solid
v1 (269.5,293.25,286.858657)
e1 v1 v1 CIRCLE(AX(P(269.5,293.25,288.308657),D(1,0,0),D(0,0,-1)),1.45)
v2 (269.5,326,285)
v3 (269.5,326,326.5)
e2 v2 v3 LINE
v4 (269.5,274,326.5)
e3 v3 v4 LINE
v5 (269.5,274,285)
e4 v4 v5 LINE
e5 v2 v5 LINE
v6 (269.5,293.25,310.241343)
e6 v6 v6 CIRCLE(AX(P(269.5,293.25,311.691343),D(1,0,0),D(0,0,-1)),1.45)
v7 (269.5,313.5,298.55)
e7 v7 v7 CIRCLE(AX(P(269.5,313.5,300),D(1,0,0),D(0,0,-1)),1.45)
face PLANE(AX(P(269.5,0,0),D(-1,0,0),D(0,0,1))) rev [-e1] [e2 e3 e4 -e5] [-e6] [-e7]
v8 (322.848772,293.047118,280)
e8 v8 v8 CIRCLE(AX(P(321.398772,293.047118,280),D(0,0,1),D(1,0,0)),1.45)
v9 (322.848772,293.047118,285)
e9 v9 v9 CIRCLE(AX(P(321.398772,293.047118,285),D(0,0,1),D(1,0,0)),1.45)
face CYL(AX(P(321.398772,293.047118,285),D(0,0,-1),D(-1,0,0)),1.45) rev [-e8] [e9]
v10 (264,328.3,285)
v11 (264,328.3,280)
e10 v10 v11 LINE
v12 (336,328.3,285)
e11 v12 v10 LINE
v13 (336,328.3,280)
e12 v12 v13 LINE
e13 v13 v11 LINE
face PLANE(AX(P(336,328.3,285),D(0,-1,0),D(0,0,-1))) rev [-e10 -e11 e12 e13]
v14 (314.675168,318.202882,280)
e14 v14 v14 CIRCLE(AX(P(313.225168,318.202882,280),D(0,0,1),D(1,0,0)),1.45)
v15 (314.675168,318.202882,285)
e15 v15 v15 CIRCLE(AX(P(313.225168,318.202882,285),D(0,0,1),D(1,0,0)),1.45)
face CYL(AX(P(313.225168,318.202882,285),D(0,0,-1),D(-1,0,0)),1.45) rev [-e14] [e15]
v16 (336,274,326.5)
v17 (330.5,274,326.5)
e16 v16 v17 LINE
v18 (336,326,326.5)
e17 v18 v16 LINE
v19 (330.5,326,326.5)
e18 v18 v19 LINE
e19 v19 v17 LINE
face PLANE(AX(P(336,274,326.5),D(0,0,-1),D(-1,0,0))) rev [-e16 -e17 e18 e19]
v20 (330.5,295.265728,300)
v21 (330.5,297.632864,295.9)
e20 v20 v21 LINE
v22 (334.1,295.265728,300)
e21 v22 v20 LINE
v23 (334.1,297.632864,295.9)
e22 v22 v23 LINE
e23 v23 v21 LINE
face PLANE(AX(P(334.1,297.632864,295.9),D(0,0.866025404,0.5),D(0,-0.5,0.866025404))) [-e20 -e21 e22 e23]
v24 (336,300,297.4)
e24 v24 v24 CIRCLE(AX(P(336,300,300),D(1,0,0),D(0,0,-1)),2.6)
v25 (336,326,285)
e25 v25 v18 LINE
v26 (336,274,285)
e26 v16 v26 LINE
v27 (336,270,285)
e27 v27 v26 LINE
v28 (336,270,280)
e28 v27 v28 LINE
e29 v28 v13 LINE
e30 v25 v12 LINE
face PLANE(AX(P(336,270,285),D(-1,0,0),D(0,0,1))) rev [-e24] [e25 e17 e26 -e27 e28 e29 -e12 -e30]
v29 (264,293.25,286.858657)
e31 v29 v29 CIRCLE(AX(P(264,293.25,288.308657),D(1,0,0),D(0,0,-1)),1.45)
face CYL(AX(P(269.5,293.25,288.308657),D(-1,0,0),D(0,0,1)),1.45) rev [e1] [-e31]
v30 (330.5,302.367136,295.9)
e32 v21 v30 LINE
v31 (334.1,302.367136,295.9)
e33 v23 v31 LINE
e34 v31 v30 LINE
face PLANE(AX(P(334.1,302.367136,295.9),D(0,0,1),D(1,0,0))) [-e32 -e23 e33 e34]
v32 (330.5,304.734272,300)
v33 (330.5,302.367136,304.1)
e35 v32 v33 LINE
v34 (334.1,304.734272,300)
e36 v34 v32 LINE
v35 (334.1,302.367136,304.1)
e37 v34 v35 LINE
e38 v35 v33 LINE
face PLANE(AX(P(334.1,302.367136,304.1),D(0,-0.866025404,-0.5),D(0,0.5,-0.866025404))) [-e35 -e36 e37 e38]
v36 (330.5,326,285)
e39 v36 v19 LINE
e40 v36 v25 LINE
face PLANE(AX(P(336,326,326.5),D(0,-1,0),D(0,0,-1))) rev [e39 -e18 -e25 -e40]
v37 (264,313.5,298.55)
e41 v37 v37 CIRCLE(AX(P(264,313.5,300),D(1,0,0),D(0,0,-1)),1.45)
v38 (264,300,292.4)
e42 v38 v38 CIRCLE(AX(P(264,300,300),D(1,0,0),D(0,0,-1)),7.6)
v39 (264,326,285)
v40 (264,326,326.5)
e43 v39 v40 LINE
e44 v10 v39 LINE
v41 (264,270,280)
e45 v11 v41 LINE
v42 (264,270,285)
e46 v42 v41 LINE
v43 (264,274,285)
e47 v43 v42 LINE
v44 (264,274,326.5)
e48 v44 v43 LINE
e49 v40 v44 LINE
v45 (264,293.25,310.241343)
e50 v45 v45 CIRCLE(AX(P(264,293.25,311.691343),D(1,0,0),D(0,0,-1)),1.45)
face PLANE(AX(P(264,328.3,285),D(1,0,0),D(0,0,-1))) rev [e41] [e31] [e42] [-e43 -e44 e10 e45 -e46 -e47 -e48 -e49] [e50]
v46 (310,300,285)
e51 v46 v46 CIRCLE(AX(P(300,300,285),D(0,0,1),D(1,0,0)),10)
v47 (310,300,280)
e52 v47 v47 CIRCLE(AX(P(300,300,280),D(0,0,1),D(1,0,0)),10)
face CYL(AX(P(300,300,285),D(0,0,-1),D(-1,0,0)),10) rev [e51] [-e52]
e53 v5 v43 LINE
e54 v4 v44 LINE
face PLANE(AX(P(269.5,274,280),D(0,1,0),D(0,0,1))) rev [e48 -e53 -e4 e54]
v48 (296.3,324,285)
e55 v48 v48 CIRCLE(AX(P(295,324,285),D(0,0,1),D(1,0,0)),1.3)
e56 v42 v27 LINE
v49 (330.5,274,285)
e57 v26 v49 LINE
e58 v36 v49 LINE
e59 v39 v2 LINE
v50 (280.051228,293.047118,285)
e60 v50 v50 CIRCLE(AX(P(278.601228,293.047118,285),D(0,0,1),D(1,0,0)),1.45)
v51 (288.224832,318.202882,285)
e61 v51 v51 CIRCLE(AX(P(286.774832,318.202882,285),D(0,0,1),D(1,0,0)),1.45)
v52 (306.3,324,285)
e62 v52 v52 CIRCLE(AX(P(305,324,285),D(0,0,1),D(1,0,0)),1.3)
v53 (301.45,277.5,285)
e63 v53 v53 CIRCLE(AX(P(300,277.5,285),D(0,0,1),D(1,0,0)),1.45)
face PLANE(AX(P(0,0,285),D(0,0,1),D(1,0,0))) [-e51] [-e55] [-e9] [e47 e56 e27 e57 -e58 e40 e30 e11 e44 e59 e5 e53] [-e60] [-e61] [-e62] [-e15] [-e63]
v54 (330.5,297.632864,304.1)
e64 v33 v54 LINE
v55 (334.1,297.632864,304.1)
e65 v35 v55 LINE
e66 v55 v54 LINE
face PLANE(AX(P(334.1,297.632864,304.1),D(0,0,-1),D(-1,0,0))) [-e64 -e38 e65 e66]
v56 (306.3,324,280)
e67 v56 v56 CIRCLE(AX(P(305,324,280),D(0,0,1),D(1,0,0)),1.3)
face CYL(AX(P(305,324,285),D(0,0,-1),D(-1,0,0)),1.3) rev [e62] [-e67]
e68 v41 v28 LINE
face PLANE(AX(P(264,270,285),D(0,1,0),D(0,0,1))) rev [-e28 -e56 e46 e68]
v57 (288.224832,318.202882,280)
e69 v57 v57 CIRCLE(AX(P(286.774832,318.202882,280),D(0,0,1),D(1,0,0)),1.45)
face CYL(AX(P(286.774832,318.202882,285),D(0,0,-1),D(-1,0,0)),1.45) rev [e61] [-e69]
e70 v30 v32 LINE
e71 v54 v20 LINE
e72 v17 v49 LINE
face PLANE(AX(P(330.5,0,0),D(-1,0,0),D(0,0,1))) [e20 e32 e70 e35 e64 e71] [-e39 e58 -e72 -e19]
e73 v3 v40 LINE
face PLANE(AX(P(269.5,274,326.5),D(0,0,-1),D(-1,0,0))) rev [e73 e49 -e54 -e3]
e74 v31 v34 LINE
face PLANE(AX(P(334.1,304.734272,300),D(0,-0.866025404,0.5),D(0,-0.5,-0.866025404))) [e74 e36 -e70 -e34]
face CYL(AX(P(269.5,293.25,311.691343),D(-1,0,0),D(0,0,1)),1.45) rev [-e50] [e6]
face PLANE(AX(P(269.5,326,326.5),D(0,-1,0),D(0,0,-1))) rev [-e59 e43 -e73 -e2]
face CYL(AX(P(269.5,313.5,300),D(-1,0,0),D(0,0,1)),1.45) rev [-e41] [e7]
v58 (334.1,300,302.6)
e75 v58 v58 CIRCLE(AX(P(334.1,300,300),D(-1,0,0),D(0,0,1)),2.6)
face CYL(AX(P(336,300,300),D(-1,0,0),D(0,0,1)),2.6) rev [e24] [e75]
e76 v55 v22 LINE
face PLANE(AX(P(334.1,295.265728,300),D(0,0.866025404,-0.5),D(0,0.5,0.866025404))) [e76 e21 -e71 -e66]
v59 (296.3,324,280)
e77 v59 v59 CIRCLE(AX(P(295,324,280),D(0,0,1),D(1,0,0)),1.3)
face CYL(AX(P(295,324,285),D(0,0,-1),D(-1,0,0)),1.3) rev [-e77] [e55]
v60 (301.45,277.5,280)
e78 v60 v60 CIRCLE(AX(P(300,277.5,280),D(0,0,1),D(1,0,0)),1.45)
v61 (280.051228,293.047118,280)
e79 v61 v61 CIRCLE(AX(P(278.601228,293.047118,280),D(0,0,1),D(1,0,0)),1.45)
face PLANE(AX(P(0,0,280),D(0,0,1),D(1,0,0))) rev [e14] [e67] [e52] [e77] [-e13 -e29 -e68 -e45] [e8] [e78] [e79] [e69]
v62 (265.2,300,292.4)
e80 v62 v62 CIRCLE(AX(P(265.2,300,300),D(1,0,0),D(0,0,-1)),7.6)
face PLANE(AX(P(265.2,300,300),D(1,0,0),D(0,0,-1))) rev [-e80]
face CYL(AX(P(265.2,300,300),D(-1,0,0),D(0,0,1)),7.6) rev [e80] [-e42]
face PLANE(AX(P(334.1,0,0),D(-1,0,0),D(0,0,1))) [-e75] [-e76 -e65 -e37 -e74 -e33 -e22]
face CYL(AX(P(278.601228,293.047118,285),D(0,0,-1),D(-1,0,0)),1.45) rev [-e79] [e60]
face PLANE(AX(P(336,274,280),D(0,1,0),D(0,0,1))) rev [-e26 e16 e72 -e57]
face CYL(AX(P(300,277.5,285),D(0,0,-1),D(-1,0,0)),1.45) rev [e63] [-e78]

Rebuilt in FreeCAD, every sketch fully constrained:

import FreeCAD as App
import Part
import Sketcher

V = App.Vector
Q = App.Units.Quantity

doc = App.newDocument("Part")
body = doc.addObject("PartDesign::Body", "Body")

# Sketch on XY plane
sketch1 = body.newObject("Sketcher::SketchObject", "Sketch")
sketch1.AttachmentSupport = (doc.getObject("XY_Plane"), [""])
sketch1.MapMode = "FlatFace"
sketch1.AttachmentOffset = App.Placement(V(0, 0, 280), App.Rotation())
sketch1.addGeometry([
    Part.LineSegment(V(264, 328.3, 0), V(264, 270, 0)),  # 0
    Part.LineSegment(V(264, 270, 0), V(336, 270, 0)),  # 1
    Part.LineSegment(V(336, 270, 0), V(336, 328.3, 0)),  # 2
    Part.LineSegment(V(336, 328.3, 0), V(264, 328.3, 0)),  # 3
    Part.Circle(V(300, 277.5, 0), V(0, 0, 1), 1.4),  # 4
    Part.Circle(V(278.6, 293, 0), V(0, 0, 1), 1.4),  # 5
    Part.Circle(V(300, 300, 0), V(0, 0, 1), 10),  # 6
    Part.Circle(V(321.4, 293, 0), V(0, 0, 1), 1.4),  # 7
    Part.Circle(V(286.8, 318.2, 0), V(0, 0, 1), 1.4),  # 8
    Part.Circle(V(295, 324, 0), V(0, 0, 1), 1.3),  # 9
    Part.Circle(V(305, 324, 0), V(0, 0, 1), 1.3),  # 10
    Part.Circle(V(313.2, 318.2, 0), V(0, 0, 1), 1.4),  # 11
], False)
sketch1.addConstraint([
    Sketcher.Constraint("Coincident", 0, 2, 1, 1),
    Sketcher.Constraint("Coincident", 1, 2, 2, 1),
    Sketcher.Constraint("Coincident", 2, 2, 3, 1),
    Sketcher.Constraint("Coincident", 3, 2, 0, 1),
    Sketcher.Constraint("Vertical", 0),
    Sketcher.Constraint("Horizontal", 1),
    Sketcher.Constraint("Vertical", 2),
    Sketcher.Constraint("Horizontal", 3),
    Sketcher.Constraint("Equal", 4, 5),
    Sketcher.Constraint("Equal", 5, 7),
    Sketcher.Constraint("Equal", 7, 8),
    Sketcher.Constraint("Equal", 9, 10),
    Sketcher.Constraint("Equal", 8, 11),
    Sketcher.Constraint("Horizontal", 5, 3, 7, 3),
    Sketcher.Constraint("Horizontal", 9, 3, 10, 3),
    Sketcher.Constraint("Horizontal", 8, 3, 11, 3),
    Sketcher.Constraint("Vertical", 4, 3, 6, 3),
    Sketcher.Constraint("Diameter", 6, 20.0),
    Sketcher.Constraint("Diameter", 4, 2.9),
    Sketcher.Constraint("Diameter", 9, 2.6),
    Sketcher.Constraint("DistanceX", 1, 1, 1, 2, 72.0),
    Sketcher.Constraint("DistanceY", 0, 2, 0, 1, 58.3),
    Sketcher.Constraint("DistanceX", -1, 1, 4, 3, 300.0),
    Sketcher.Constraint("DistanceY", -1, 1, 6, 3, 300.0),
    Sketcher.Constraint("DistanceX", -1, 1, 9, 3, 295.0),
    Sketcher.Constraint("DistanceY", -1, 1, 9, 3, 324.0),
    Sketcher.Constraint("DistanceX", -1, 1, 10, 3, 305.0),
    Sketcher.Constraint("DistanceX", -1, 1, 0, 2, 264.0),
    Sketcher.Constraint("DistanceY", -1, 1, 0, 2, 270.0),
    Sketcher.Constraint("DistanceY", -1, 1, 4, 3, 277.5),
    Sketcher.Constraint("DistanceX", -1, 1, 5, 3, 278.601228),
    Sketcher.Constraint("DistanceX", -1, 1, 7, 3, 321.398772),
    Sketcher.Constraint("DistanceX", -1, 1, 8, 3, 286.774832),
    Sketcher.Constraint("DistanceX", -1, 1, 11, 3, 313.225168),
    Sketcher.Constraint("DistanceY", -1, 1, 5, 3, 293.047118),
    Sketcher.Constraint("DistanceY", -1, 1, 8, 3, 318.202882),
])
pad1 = body.newObject("PartDesign::Pad", "Pad")
pad1.Profile = sketch1
pad1.Length = 5

# Sketch on YZ plane
sketch2 = body.newObject("Sketcher::SketchObject", "Sketch001")
sketch2.AttachmentSupport = (doc.getObject("YZ_Plane"), [""])
sketch2.MapMode = "FlatFace"
sketch2.AttachmentOffset = App.Placement(V(0, 0, 264), App.Rotation())
sketch2.addGeometry([
    Part.LineSegment(V(326, 326.5, 0), V(274, 326.5, 0)),  # 0
    Part.LineSegment(V(274, 326.5, 0), V(274, 280, 0)),  # 1
    Part.LineSegment(V(274, 280, 0), V(326, 280, 0)),  # 2
    Part.LineSegment(V(326, 280, 0), V(326, 326.5, 0)),  # 3
    Part.Circle(V(293.2, 311.7, 0), V(0, 0, 1), 1.4),  # 4
    Part.Circle(V(293.2, 288.3, 0), V(0, 0, 1), 1.4),  # 5
    Part.Circle(V(313.5, 300, 0), V(0, 0, 1), 1.4),  # 6
], False)
sketch2.addConstraint([
    Sketcher.Constraint("Coincident", 0, 2, 1, 1),
    Sketcher.Constraint("Coincident", 1, 2, 2, 1),
    Sketcher.Constraint("Coincident", 2, 2, 3, 1),
    Sketcher.Constraint("Coincident", 3, 2, 0, 1),
    Sketcher.Constraint("Horizontal", 0),
    Sketcher.Constraint("Vertical", 1),
    Sketcher.Constraint("Horizontal", 2),
    Sketcher.Constraint("Vertical", 3),
    Sketcher.Constraint("Equal", 4, 5),
    Sketcher.Constraint("Equal", 5, 6),
    Sketcher.Constraint("Vertical", 4, 3, 5, 3),
    Sketcher.Constraint("Diameter", 4, 2.9),
    Sketcher.Constraint("DistanceX", 0, 2, 0, 1, 52.0),
    Sketcher.Constraint("DistanceY", 1, 2, 1, 1, 46.5),
    Sketcher.Constraint("DistanceY", -1, 1, 6, 3, 300.0),
    Sketcher.Constraint("DistanceX", -1, 1, 0, 2, 274.0),
    Sketcher.Constraint("DistanceY", -1, 1, 1, 2, 280.0),
    Sketcher.Constraint("DistanceX", -1, 1, 6, 3, 313.5),
    Sketcher.Constraint("DistanceX", -1, 1, 4, 3, 293.25),
    Sketcher.Constraint("DistanceY", -1, 1, 4, 3, 311.691343),
    Sketcher.Constraint("DistanceY", -1, 1, 5, 3, 288.308657),
])
pad2 = body.newObject("PartDesign::Pad", "Pad001")
pad2.Profile = sketch2
pad2.Length = 5.5

# Sketch on YZ plane
sketch3 = body.newObject("Sketcher::SketchObject", "Sketch002")
sketch3.AttachmentSupport = (doc.getObject("YZ_Plane"), [""])
sketch3.MapMode = "FlatFace"
sketch3.AttachmentOffset = App.Placement(V(0, 0, 264), App.Rotation())
sketch3.addGeometry(Part.Circle(V(300, 300, 0), V(0, 0, 1), 8), False)
sketch3.addConstraint([
    Sketcher.Constraint("Diameter", 0, 15.2),
    Sketcher.Constraint("DistanceX", -1, 1, 0, 3, 300.0),
    Sketcher.Constraint("DistanceY", -1, 1, 0, 3, 300.0),
])
pocket1 = body.newObject("PartDesign::Pocket", "Pocket")
pocket1.Profile = sketch3
pocket1.Length = 1.2
pocket1.Reversed = True

# Sketch on YZ plane
sketch4 = body.newObject("Sketcher::SketchObject", "Sketch003")
sketch4.AttachmentSupport = (doc.getObject("YZ_Plane"), [""])
sketch4.MapMode = "FlatFace"
sketch4.AttachmentOffset = App.Placement(V(0, 0, 330.5), App.Rotation())
sketch4.addGeometry([
    Part.LineSegment(V(326, 326.5, 0), V(274, 326.5, 0)),  # 0
    Part.LineSegment(V(274, 326.5, 0), V(274, 280, 0)),  # 1
    Part.LineSegment(V(274, 280, 0), V(326, 280, 0)),  # 2
    Part.LineSegment(V(326, 280, 0), V(326, 326.5, 0)),  # 3
    Part.Circle(V(300, 300, 0), V(0, 0, 1), 2.6),  # 4
], False)
sketch4.addConstraint([
    Sketcher.Constraint("Coincident", 0, 2, 1, 1),
    Sketcher.Constraint("Coincident", 1, 2, 2, 1),
    Sketcher.Constraint("Coincident", 2, 2, 3, 1),
    Sketcher.Constraint("Coincident", 3, 2, 0, 1),
    Sketcher.Constraint("Horizontal", 0),
    Sketcher.Constraint("Vertical", 1),
    Sketcher.Constraint("Horizontal", 2),
    Sketcher.Constraint("Vertical", 3),
    Sketcher.Constraint("Diameter", 4, 5.2),
    Sketcher.Constraint("DistanceX", 0, 2, 0, 1, 52.0),
    Sketcher.Constraint("DistanceY", 1, 2, 1, 1, 46.5),
    Sketcher.Constraint("DistanceX", -1, 1, 4, 3, 300.0),
    Sketcher.Constraint("DistanceY", -1, 1, 4, 3, 300.0),
    Sketcher.Constraint("DistanceX", -1, 1, 0, 2, 274.0),
    Sketcher.Constraint("DistanceY", -1, 1, 1, 2, 280.0),
])
pad3 = body.newObject("PartDesign::Pad", "Pad002")
pad3.Profile = sketch4
pad3.Length = 5.5

# Sketch on YZ plane
sketch5 = body.newObject("Sketcher::SketchObject", "Sketch004")
sketch5.AttachmentSupport = (doc.getObject("YZ_Plane"), [""])
sketch5.MapMode = "FlatFace"
sketch5.AttachmentOffset = App.Placement(V(0, 0, 330.5), App.Rotation())
sketch5.addGeometry([
    Part.LineSegment(V(304.7, 300, 0), V(302.4, 304.1, 0)),  # 0
    Part.LineSegment(V(302.4, 304.1, 0), V(297.6, 304.1, 0)),  # 1
    Part.LineSegment(V(297.6, 304.1, 0), V(295.3, 300, 0)),  # 2
    Part.LineSegment(V(295.3, 300, 0), V(297.6, 295.9, 0)),  # 3
    Part.LineSegment(V(297.6, 295.9, 0), V(302.4, 295.9, 0)),  # 4
    Part.LineSegment(V(302.4, 295.9, 0), V(304.7, 300, 0)),  # 5
], False)
sketch5.addConstraint([
    Sketcher.Constraint("Coincident", 0, 2, 1, 1),
    Sketcher.Constraint("Coincident", 1, 2, 2, 1),
    Sketcher.Constraint("Coincident", 2, 2, 3, 1),
    Sketcher.Constraint("Coincident", 3, 2, 4, 1),
    Sketcher.Constraint("Coincident", 4, 2, 5, 1),
    Sketcher.Constraint("Coincident", 5, 2, 0, 1),
    Sketcher.Constraint("Horizontal", 1),
    Sketcher.Constraint("Horizontal", 4),
    Sketcher.Constraint("Parallel", 0, 3),
    Sketcher.Constraint("Parallel", 2, 5),
    Sketcher.Constraint("Horizontal", 2, 2, 5, 2),
    Sketcher.Constraint("Vertical", 1, 2, 3, 2),
    Sketcher.Constraint("Vertical", 0, 2, 4, 2),
    Sketcher.Constraint("Angle", 0, Q("120 deg")),
    Sketcher.Constraint("DistanceY", -1, 1, 2, 2, 300.0),
    Sketcher.Constraint("DistanceY", -1, 1, 0, 2, 304.1),
    Sketcher.Constraint("DistanceX", 1, 2, 1, 1, 4.734272),
    Sketcher.Constraint("DistanceX", -1, 1, 0, 2, 302.367136),
])
pocket2 = body.newObject("PartDesign::Pocket", "Pocket001")
pocket2.Profile = sketch5
pocket2.Length = 3.6
pocket2.Reversed = True

doc.recompute()
